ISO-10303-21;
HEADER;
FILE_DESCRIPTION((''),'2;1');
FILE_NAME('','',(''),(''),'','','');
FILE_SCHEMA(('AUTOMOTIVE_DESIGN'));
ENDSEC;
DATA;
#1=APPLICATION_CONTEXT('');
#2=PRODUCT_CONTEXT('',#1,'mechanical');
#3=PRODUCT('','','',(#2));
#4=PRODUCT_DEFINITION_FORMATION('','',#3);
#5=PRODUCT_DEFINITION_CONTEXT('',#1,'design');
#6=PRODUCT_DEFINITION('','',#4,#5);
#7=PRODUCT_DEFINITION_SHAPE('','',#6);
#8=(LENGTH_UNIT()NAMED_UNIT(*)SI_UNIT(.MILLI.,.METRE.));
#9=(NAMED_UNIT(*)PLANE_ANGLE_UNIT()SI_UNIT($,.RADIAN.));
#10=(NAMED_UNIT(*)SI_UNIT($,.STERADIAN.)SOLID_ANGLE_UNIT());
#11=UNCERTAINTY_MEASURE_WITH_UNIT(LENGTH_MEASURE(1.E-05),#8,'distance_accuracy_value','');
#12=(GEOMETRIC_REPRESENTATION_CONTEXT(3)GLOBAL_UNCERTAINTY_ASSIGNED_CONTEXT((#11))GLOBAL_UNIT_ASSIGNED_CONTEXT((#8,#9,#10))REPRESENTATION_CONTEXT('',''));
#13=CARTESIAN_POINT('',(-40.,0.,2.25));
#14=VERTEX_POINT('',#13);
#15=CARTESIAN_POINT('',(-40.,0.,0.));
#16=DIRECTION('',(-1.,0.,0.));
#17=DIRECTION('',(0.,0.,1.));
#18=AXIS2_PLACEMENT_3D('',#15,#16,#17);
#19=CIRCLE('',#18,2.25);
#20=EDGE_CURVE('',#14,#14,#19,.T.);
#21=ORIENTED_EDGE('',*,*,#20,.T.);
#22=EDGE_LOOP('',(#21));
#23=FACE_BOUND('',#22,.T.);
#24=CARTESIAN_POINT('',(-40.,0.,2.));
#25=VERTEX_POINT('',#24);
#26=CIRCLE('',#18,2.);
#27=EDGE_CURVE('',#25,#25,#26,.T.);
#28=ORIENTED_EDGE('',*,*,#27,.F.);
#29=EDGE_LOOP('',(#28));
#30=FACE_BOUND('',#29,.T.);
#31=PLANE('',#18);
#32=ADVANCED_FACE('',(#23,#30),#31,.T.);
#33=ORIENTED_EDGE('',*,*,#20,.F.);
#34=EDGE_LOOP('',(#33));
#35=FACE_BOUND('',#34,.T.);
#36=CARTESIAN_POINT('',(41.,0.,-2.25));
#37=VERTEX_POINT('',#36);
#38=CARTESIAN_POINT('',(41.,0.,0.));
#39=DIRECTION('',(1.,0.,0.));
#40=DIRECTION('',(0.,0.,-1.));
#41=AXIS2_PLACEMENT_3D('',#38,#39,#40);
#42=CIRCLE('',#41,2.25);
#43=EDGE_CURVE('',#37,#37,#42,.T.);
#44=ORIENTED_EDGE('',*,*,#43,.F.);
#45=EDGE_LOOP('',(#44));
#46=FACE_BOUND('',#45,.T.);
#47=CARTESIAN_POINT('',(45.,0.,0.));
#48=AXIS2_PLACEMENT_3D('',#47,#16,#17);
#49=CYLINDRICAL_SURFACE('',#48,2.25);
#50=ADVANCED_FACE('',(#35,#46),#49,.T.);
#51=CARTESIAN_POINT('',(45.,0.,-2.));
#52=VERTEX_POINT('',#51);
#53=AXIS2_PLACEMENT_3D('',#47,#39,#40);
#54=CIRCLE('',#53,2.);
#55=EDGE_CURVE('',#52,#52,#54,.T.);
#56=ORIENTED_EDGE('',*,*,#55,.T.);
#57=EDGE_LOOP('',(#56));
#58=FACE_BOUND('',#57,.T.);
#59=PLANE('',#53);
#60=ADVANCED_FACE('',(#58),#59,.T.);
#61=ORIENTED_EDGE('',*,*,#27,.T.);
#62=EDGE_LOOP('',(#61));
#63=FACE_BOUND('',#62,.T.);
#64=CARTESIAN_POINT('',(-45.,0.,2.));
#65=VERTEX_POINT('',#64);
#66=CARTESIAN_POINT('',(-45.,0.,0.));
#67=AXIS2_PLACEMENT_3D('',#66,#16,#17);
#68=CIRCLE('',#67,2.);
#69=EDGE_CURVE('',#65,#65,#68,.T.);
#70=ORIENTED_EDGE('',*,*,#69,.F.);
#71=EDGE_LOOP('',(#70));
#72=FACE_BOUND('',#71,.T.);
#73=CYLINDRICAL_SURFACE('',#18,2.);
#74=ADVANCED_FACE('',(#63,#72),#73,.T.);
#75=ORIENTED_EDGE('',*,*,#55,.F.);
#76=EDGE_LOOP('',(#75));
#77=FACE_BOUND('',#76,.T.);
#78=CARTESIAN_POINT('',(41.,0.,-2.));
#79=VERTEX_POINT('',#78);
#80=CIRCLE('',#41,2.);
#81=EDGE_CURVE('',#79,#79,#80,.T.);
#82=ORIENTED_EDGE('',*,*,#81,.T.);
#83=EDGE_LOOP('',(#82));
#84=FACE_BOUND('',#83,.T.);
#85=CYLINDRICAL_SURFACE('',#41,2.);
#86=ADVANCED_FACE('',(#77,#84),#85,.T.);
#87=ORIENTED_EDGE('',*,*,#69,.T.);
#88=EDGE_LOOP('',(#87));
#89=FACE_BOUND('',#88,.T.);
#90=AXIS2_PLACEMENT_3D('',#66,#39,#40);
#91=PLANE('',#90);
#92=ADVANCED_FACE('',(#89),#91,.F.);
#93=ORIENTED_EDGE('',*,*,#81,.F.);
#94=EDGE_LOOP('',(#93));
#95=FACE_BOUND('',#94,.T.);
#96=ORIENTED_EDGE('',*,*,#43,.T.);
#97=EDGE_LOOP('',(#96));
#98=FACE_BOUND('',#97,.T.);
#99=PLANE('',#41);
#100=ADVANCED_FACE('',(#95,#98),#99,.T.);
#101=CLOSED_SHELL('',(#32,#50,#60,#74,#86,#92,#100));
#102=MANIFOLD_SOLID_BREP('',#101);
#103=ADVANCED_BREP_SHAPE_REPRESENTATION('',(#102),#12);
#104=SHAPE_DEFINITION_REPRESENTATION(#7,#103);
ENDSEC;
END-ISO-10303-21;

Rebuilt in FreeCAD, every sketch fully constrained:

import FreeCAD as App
import Part
import Sketcher

doc = App.newDocument("Part")
params = doc.addObject("Spreadsheet::Sheet", "Params")
for row, (alias, value) in enumerate([
    ("sketch1_diameter", "4.5 mm"),
    ("pad1_length", "90 mm"),
    ("sketch2_diameter", "4 mm"),
    ("sketch2_diameter2", "4.5 mm"),
    ("pocket1_length", "4 mm"),
    ("sketch3_diameter", "4 mm"),
    ("sketch3_diameter2", "4.5 mm"),
    ("pocket2_length", "5 mm"),
], start=1):
    params.set(f"A{row}", alias)
    params.set(f"B{row}", "=" + value)
    params.setAlias(f"B{row}", alias)

body = doc.addObject("PartDesign::Body", "Body")

# Sketch on YZ plane
sketch1 = body.newObject("Sketcher::SketchObject", "Sketch")
sketch1.AttachmentSupport = (doc.getObject("YZ_Plane"), [""])
sketch1.MapMode = "FlatFace"
sketch1.addGeometry(Part.Circle(App.Vector(0, 0, 0), App.Vector(0, 0, 1), 2.2), False)
sketch1.addConstraint([
    Sketcher.Constraint("Coincident", 0, 3, -1, 1),
    Sketcher.Constraint("Diameter", 0, 4.5),
])
sketch1.setExpression("Constraints[1]", "Params.sketch1_diameter")
pad1 = body.newObject("PartDesign::Pad", "Pad")
pad1.Profile = sketch1
pad1.setExpression("Length", "Params.pad1_length")
pad1.Midplane = True

# Sketch on YZ plane
sketch2 = body.newObject("Sketcher::SketchObject", "Sketch001")
sketch2.AttachmentSupport = (doc.getObject("YZ_Plane"), [""])
sketch2.MapMode = "FlatFace"
sketch2.AttachmentOffset = App.Placement(App.Vector(0, 0, 45), App.Rotation())
sketch2.addGeometry([
    Part.Circle(App.Vector(0, 0, 0), App.Vector(0, 0, 1), 2.2),
    Part.Circle(App.Vector(0, 0, 0), App.Vector(0, 0, 1), 2),
], False)
sketch2.addConstraint([
    Sketcher.Constraint("Coincident", 0, 3, -1, 1),
    Sketcher.Constraint("Coincident", 1, 3, -1, 1),
    Sketcher.Constraint("Diameter", 1, 4.0),
    Sketcher.Constraint("Diameter", 0, 4.5),
])
sketch2.setExpression("Constraints[2]", "Params.sketch2_diameter")
sketch2.setExpression("Constraints[3]", "Params.sketch2_diameter2")
pocket1 = body.newObject("PartDesign::Pocket", "Pocket")
pocket1.Profile = sketch2
pocket1.setExpression("Length", "Params.pocket1_length")

# Sketch on YZ plane
sketch3 = body.newObject("Sketcher::SketchObject", "Sketch002")
sketch3.AttachmentSupport = (doc.getObject("YZ_Plane"), [""])
sketch3.MapMode = "FlatFace"
sketch3.AttachmentOffset = App.Placement(App.Vector(0, 0, -45), App.Rotation())
sketch3.addGeometry([
    Part.Circle(App.Vector(0, 0, 0), App.Vector(0, 0, 1), 2.2),
    Part.Circle(App.Vector(0, 0, 0), App.Vector(0, 0, 1), 2),
], False)
sketch3.addConstraint([
    Sketcher.Constraint("Coincident", 0, 3, -1, 1),
    Sketcher.Constraint("Coincident", 1, 3, -1, 1),
    Sketcher.Constraint("Diameter", 1, 4.0),
    Sketcher.Constraint("Diameter", 0, 4.5),
])
sketch3.setExpression("Constraints[2]", "Params.sketch3_diameter")
sketch3.setExpression("Constraints[3]", "Params.sketch3_diameter2")
pocket2 = body.newObject("PartDesign::Pocket", "Pocket001")
pocket2.Profile = sketch3
pocket2.setExpression("Length", "Params.pocket2_length")
pocket2.Reversed = True

doc.recompute()
